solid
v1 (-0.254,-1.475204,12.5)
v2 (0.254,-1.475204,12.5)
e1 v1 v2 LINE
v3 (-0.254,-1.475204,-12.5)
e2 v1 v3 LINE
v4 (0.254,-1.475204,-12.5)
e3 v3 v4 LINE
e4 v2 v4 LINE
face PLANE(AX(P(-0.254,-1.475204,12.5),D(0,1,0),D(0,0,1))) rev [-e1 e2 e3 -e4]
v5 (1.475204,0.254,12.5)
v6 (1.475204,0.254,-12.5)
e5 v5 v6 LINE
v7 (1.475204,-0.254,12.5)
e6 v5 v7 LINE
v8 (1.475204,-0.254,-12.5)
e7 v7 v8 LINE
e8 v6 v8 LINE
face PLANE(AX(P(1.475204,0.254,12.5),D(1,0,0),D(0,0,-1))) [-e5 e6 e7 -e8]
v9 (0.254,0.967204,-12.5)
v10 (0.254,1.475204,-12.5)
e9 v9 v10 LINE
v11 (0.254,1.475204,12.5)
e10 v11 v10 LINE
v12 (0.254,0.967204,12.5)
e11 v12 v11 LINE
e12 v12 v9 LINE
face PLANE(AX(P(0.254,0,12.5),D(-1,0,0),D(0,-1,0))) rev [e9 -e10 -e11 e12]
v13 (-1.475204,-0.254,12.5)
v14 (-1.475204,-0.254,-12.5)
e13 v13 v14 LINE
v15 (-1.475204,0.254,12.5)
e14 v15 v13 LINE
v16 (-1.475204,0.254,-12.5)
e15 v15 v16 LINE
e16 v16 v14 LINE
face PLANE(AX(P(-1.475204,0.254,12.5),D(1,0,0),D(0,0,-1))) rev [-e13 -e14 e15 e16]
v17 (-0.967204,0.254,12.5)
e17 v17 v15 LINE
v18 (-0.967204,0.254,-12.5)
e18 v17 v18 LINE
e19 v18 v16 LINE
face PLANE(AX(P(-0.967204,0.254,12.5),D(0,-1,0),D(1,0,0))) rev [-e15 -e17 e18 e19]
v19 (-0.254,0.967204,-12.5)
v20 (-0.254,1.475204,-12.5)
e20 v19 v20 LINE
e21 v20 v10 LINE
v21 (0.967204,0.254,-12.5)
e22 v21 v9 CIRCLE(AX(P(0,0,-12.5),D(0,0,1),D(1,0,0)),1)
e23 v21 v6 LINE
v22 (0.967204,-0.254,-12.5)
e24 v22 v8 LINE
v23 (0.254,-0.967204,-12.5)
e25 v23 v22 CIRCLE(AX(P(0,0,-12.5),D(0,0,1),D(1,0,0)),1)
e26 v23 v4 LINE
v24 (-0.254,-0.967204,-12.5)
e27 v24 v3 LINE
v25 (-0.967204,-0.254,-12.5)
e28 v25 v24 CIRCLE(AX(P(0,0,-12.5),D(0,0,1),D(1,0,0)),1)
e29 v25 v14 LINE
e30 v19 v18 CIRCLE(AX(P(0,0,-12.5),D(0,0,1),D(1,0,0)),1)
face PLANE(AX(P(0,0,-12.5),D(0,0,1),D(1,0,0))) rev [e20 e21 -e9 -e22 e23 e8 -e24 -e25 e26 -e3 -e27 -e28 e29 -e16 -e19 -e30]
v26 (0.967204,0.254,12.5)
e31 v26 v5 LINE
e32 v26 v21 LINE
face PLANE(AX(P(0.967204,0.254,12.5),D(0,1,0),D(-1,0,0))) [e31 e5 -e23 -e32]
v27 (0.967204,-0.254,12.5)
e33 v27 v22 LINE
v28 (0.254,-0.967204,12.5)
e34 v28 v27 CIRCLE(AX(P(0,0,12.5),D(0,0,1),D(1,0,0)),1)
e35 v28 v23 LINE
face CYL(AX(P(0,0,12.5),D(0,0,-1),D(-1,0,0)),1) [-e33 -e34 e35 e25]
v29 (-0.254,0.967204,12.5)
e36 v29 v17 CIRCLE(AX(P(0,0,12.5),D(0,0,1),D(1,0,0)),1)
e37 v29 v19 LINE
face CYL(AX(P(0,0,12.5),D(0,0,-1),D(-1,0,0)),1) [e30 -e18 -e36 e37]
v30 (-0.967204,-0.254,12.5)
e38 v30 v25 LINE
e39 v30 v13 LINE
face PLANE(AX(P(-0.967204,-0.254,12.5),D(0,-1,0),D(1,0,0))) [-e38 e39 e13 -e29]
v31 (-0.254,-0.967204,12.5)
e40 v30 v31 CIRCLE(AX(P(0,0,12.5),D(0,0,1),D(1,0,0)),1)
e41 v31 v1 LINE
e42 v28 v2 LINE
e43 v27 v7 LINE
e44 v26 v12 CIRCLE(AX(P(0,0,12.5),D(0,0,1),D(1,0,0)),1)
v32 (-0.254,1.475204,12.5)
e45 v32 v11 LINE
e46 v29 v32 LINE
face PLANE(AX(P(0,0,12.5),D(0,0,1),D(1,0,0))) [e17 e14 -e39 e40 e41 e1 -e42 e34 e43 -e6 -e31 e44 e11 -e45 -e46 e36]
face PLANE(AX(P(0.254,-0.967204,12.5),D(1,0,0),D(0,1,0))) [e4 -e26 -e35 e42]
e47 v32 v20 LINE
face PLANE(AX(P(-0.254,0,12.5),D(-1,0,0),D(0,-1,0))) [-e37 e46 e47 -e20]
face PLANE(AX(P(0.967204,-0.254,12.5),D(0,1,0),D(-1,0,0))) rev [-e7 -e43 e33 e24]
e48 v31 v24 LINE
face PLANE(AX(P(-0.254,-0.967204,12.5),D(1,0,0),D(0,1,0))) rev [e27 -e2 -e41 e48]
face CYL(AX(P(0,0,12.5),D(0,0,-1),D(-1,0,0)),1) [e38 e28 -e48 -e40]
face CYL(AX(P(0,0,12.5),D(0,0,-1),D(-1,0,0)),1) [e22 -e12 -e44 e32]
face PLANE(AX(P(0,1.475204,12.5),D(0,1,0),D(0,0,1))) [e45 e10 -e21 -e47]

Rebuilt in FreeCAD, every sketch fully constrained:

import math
import FreeCAD as App
import Part
import Sketcher
from FreeCAD import Vector

doc = App.newDocument("Part")
body = doc.addObject("PartDesign::Body", "Body")

# Sketch on XY plane
sketch1 = doc.addObject("Sketcher::SketchObject", "Sketch")
body.addObject(sketch1)
sketch1.AttachmentSupport = (doc.XY_Plane, [""])
sketch1.MapMode = "FlatFace"
sketch1.addGeometry([
    Part.LineSegment(Vector(-0.254, 1.475204, 0), Vector(-0.254, 0.967204, 0)),  # 0
    Part.ArcOfCircle(Part.Circle(Vector(0, 0, 0), Vector(0, 0, 1), 1), math.radians(104.714339), math.radians(165.285661)),  # 1
    Part.LineSegment(Vector(-0.967204, 0.254, 0), Vector(-1.475204, 0.254, 0)),  # 2
    Part.LineSegment(Vector(-1.475204, 0.254, 0), Vector(-1.475204, -0.254, 0)),  # 3
    Part.LineSegment(Vector(-1.475204, -0.254, 0), Vector(-0.967204, -0.254, 0)),  # 4
    Part.ArcOfCircle(Part.Circle(Vector(0, 0, 0), Vector(0, 0, 1), 1), math.radians(-165.285661), math.radians(-104.714339)),  # 5
    Part.LineSegment(Vector(-0.254, -0.967204, 0), Vector(-0.254, -1.475204, 0)),  # 6
    Part.LineSegment(Vector(-0.254, -1.475204, 0), Vector(0.254, -1.475204, 0)),  # 7
    Part.LineSegment(Vector(0.254, -1.475204, 0), Vector(0.254, -0.967204, 0)),  # 8
    Part.ArcOfCircle(Part.Circle(Vector(0, 0, 0), Vector(0, 0, 1), 1), math.radians(-75.285661), math.radians(-14.714339)),  # 9
    Part.LineSegment(Vector(0.967204, -0.254, 0), Vector(1.475204, -0.254, 0)),  # 10
    Part.LineSegment(Vector(1.475204, -0.254, 0), Vector(1.475204, 0.254, 0)),  # 11
    Part.LineSegment(Vector(1.475204, 0.254, 0), Vector(0.967204, 0.254, 0)),  # 12
    Part.ArcOfCircle(Part.Circle(Vector(0, 0, 0), Vector(0, 0, 1), 1), math.radians(14.714339), math.radians(75.285661)),  # 13
    Part.LineSegment(Vector(0.254, 0.967204, 0), Vector(0.254, 1.475204, 0)),  # 14
    Part.LineSegment(Vector(0.254, 1.475204, 0), Vector(-0.254, 1.475204, 0)),  # 15
], False)
sketch1.addConstraint([
    Sketcher.Constraint("Coincident", 0, 2, 1, 1),
    Sketcher.Constraint("Coincident", 1, 2, 2, 1),
    Sketcher.Constraint("Coincident", 2, 2, 3, 1),
    Sketcher.Constraint("Coincident", 3, 2, 4, 1),
    Sketcher.Constraint("Coincident", 4, 2, 5, 1),
    Sketcher.Constraint("Coincident", 5, 2, 6, 1),
    Sketcher.Constraint("Coincident", 6, 2, 7, 1),
    Sketcher.Constraint("Coincident", 7, 2, 8, 1),
    Sketcher.Constraint("Coincident", 8, 2, 9, 1),
    Sketcher.Constraint("Coincident", 9, 2, 10, 1),
    Sketcher.Constraint("Coincident", 10, 2, 11, 1),
    Sketcher.Constraint("Coincident", 11, 2, 12, 1),
    Sketcher.Constraint("Coincident", 12, 2, 13, 1),
    Sketcher.Constraint("Coincident", 13, 2, 14, 1),
    Sketcher.Constraint("Coincident", 14, 2, 15, 1),
    Sketcher.Constraint("Coincident", 15, 2, 0, 1),
    Sketcher.Constraint("Vertical", 0),
    Sketcher.Constraint("Horizontal", 2),
    Sketcher.Constraint("Vertical", 3),
    Sketcher.Constraint("Horizontal", 4),
    Sketcher.Constraint("Vertical", 6),
    Sketcher.Constraint("Horizontal", 7),
    Sketcher.Constraint("Vertical", 8),
    Sketcher.Constraint("Horizontal", 10),
    Sketcher.Constraint("Vertical", 11),
    Sketcher.Constraint("Horizontal", 12),
    Sketcher.Constraint("Vertical", 14),
    Sketcher.Constraint("Horizontal", 15),
    Sketcher.Constraint("Coincident", 1, 3, -1, 1),
    Sketcher.Constraint("Coincident", 5, 3, -1, 1),
    Sketcher.Constraint("Coincident", 9, 3, -1, 1),
    Sketcher.Constraint("Coincident", 13, 3, -1, 1),
    Sketcher.Constraint("Equal", 1, 5),
    Sketcher.Constraint("Equal", 5, 9),
    Sketcher.Constraint("Equal", 9, 13),
    Sketcher.Constraint("Symmetric", 2, 2, 10, 2, -1, 1),
    Sketcher.Constraint("Symmetric", 6, 2, 14, 2, -1, 1),
    Sketcher.Constraint("Horizontal", 5, 2, 8, 2),
    Sketcher.Constraint("Horizontal", 4, 2, 9, 2),
    Sketcher.Constraint("Horizontal", 2, 2, 11, 2),
    Sketcher.Constraint("Horizontal", 0, 2, 13, 2),
    Sketcher.Constraint("Equal", 4, 7),
    Sketcher.Constraint("Equal", 15, 0),
    Sketcher.Constraint("Equal", 0, 3),
    Sketcher.Constraint("Radius", 1, 1.0),
    Sketcher.Constraint("DistanceX", 2, 2, 2, 1, 0.508),
])
pad1 = doc.addObject("PartDesign::Pad", "Pad")
body.addObject(pad1)
pad1.Profile = sketch1
pad1.Length = 25
pad1.Midplane = True

doc.recompute()
